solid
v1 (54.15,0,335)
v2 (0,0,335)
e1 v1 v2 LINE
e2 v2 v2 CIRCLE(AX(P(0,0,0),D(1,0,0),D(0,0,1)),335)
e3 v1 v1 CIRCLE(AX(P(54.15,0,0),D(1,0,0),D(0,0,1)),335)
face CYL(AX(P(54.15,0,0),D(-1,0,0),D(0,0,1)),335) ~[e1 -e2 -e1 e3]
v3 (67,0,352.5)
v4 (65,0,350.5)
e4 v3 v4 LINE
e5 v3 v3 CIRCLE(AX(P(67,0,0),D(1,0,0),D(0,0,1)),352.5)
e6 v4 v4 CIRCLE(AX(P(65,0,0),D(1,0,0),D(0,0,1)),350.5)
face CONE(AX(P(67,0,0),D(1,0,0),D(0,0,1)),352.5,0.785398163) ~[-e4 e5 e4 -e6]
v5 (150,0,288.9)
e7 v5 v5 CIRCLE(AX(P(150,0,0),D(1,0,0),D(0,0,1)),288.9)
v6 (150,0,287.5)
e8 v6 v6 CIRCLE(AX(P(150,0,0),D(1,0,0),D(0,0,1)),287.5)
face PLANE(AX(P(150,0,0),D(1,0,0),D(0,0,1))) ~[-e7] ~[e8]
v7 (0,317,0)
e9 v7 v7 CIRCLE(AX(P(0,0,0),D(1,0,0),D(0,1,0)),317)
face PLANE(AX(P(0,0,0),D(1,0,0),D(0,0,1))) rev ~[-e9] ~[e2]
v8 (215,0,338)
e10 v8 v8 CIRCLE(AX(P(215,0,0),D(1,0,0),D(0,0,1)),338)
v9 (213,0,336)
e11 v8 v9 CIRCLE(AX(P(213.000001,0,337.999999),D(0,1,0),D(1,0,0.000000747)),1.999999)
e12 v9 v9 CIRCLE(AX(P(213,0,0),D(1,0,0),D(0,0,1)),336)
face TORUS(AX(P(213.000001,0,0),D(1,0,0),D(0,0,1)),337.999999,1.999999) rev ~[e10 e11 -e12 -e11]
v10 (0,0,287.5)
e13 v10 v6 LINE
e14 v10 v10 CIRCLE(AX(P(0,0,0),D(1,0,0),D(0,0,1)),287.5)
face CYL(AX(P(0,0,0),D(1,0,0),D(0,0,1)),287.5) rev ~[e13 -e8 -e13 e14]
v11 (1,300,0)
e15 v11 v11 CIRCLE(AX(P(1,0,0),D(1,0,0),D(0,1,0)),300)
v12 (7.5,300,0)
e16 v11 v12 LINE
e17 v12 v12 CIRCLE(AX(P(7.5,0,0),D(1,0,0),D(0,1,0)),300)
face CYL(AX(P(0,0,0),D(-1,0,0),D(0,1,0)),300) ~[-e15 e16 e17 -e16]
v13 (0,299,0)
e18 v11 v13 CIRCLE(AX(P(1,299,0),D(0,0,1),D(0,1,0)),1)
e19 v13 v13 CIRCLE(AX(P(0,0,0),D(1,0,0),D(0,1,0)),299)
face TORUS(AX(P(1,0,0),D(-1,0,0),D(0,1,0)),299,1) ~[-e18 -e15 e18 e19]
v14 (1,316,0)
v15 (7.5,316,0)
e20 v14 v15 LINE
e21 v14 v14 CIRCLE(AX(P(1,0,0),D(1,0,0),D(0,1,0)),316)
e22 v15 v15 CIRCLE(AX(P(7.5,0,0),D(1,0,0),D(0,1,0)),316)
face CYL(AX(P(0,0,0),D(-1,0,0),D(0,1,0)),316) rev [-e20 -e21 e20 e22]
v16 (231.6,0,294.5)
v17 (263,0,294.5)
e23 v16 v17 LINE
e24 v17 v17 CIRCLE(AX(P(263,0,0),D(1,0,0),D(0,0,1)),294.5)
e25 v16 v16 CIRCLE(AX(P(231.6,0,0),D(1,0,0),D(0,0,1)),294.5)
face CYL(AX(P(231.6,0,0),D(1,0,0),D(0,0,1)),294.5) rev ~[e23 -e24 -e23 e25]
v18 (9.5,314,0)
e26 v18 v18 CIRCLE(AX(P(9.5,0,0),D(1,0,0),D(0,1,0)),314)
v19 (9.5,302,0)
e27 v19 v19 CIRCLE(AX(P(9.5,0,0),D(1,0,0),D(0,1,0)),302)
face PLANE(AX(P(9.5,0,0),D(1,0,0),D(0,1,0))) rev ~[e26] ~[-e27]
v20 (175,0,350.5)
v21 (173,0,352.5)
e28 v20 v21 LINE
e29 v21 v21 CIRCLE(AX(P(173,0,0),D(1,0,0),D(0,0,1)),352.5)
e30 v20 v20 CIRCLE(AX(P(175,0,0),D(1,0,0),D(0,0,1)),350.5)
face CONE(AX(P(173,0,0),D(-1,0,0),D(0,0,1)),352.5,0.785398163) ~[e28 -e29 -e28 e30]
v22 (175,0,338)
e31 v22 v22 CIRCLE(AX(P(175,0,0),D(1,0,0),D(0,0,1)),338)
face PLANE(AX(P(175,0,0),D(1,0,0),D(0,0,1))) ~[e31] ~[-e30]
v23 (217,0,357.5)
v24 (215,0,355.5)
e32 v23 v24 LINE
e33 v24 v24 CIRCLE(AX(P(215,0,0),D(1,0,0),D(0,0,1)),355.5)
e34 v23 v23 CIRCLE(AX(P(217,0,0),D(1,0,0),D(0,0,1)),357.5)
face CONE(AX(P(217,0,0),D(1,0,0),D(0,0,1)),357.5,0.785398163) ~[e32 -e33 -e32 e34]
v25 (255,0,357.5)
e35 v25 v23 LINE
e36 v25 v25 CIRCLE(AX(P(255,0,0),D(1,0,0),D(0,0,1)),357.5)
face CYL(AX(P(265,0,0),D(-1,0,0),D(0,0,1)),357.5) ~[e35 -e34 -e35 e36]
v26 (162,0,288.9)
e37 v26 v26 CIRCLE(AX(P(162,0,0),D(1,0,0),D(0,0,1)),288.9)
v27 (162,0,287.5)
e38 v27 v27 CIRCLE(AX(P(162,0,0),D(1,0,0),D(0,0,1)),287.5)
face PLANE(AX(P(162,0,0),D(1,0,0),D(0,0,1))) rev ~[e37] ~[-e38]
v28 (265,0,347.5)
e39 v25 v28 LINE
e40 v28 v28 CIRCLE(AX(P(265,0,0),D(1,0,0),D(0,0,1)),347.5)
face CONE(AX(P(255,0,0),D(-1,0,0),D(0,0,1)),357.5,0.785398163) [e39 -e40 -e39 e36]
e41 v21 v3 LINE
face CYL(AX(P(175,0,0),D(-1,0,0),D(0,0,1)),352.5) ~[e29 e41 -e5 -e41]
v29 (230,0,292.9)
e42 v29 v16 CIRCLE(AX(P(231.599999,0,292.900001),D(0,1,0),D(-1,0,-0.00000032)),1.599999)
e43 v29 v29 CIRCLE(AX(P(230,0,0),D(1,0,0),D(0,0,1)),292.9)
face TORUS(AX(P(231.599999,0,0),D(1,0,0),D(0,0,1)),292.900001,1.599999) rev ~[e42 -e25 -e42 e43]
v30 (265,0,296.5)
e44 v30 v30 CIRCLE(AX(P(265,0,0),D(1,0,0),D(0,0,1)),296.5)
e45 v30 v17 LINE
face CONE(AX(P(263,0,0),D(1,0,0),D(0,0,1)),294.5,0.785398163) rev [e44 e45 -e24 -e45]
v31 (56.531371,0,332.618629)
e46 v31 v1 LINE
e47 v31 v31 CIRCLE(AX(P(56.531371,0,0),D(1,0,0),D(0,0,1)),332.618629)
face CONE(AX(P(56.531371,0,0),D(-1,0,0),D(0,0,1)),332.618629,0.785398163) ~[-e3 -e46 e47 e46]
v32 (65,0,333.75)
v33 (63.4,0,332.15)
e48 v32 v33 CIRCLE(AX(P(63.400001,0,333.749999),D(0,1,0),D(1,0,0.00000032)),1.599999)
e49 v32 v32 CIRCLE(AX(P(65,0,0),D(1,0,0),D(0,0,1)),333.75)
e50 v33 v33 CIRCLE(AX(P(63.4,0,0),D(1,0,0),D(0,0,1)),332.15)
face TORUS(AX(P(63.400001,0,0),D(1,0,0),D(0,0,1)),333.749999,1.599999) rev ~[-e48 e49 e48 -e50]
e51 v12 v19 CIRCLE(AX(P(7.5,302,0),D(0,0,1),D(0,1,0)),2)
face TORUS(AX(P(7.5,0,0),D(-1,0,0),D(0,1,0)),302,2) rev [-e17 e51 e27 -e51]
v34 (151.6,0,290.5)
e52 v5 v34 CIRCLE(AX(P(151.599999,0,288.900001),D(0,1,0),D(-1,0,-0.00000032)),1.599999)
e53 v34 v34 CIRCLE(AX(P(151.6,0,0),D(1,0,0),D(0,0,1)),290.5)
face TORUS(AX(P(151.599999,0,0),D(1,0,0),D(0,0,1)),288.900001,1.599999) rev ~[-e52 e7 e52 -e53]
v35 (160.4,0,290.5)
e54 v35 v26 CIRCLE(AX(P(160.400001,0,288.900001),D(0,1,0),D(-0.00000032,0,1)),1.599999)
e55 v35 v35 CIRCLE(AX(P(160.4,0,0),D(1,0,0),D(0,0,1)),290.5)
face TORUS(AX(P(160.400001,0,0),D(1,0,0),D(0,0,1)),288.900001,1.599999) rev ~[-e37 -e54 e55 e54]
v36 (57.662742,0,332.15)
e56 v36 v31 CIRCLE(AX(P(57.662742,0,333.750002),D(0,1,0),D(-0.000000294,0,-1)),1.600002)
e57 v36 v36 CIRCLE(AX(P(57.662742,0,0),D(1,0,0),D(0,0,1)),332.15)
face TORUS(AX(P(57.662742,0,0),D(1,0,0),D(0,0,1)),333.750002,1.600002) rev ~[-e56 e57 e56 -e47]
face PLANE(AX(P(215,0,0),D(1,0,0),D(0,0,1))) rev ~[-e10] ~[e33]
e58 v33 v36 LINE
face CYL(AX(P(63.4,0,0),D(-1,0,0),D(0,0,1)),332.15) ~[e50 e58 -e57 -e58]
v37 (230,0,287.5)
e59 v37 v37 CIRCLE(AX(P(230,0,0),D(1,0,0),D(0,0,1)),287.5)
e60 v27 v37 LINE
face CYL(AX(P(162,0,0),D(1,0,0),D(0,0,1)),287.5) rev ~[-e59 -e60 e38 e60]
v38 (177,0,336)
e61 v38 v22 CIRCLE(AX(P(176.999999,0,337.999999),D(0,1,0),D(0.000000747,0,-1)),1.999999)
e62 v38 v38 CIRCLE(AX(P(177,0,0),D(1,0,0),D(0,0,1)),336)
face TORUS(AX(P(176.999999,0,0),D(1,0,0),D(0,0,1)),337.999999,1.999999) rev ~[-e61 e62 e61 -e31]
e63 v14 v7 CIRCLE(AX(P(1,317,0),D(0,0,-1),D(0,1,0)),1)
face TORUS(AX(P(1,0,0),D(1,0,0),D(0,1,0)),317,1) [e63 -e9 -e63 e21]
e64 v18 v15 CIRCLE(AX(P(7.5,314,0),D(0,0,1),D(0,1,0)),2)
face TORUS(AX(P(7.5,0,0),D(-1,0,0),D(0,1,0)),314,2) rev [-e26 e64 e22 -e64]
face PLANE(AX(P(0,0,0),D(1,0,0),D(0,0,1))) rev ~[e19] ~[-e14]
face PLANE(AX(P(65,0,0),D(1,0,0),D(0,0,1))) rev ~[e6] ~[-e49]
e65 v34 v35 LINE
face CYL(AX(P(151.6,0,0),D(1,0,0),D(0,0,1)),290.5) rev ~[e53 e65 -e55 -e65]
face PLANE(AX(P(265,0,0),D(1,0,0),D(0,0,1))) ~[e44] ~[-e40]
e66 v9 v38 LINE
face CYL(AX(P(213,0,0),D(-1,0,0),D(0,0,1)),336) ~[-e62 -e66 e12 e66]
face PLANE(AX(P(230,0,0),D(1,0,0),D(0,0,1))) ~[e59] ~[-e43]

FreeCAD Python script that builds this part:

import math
import FreeCAD as App
import Part
import Sketcher

V = App.Vector
Q = App.Units.Quantity


def edges_at(feature, points):
    """Names of the edges that pass closest to the given points."""
    edges = feature.Shape.Edges
    near = lambda p: min(range(len(edges)), key=lambda i: edges[i].distToShape(Part.Vertex(*p))[0])
    return sorted({f"Edge{near(p) + 1}" for p in points})

doc = App.newDocument("Part")
params = doc.addObject("Spreadsheet::Sheet", "Params")
for row, (alias, value) in enumerate([
    ("sketch1_radius", "1.999999 mm"),
    ("sketch1_radius2", "1.599999 mm"),
    ("sketch1_width", "150 mm"),
    ("sketch1_width2", "68 mm"),
    ("sketch1_width3", "50 mm"),
    ("revolution_angle", "360 deg"),
    ("chamfer_size", "2 mm"),
    ("chamfer2_size", "10 mm"),
    ("chamfer3_size", "2 mm"),
    ("sketch2_diameter", "632 mm"),
    ("sketch2_diameter2", "600 mm"),
    ("pocket1_length", "9.5 mm"),
    ("fillet_radius", "2 mm"),
    ("fillet2_radius", "1 mm"),
], start=1):
    params.set(f"A{row}", alias)
    params.set(f"B{row}", "=" + value)
    params.setAlias(f"B{row}", alias)

body = doc.addObject("PartDesign::Body", "Body")

sketch1 = body.newObject("Sketcher::SketchObject", "Sketch")
sketch1.AttachmentSupport = (doc.getObject("XZ_Plane"), [""])
sketch1.MapMode = "FlatFace"
sketch1.addGeometry(Part.LineSegment(V(0, 335, 0), V(0, 287.5, 0)), False)
sketch1.addGeometry(Part.LineSegment(V(0, 287.5, 0), V(150, 287.5, 0)), False)
sketch1.addGeometry(Part.LineSegment(V(150, 287.5, 0), V(150, 288.9, 0)), False)
sketch1.addGeometry(Part.ArcOfCircle(Part.Circle(V(151.6, 288.9, 0), V(0, 0, 1), 1.6), math.radians(90), math.radians(180)), False)
sketch1.addGeometry(Part.LineSegment(V(151.6, 290.5, 0), V(160.4, 290.5, 0)), False)
sketch1.addGeometry(Part.ArcOfCircle(Part.Circle(V(160.4, 288.9, 0), V(0, 0, 1), 1.6), math.radians(0), math.radians(90)), False)
sketch1.addGeometry(Part.LineSegment(V(162, 288.9, 0), V(162, 287.5, 0)), False)
sketch1.addGeometry(Part.LineSegment(V(162, 287.5, 0), V(230, 287.5, 0)), False)
sketch1.addGeometry(Part.LineSegment(V(230, 287.5, 0), V(230, 292.9, 0)), False)
sketch1.addGeometry(Part.ArcOfCircle(Part.Circle(V(231.6, 292.9, 0), V(0, 0, 1), 1.6), math.radians(90), math.radians(180)), False)
sketch1.addGeometry(Part.LineSegment(V(231.6, 294.5, 0), V(265, 294.5, 0)), False)
sketch1.addGeometry(Part.LineSegment(V(265, 294.5, 0), V(265, 357.5, 0)), False)
sketch1.addGeometry(Part.LineSegment(V(265, 357.5, 0), V(215, 357.5, 0)), False)
sketch1.addGeometry(Part.LineSegment(V(215, 357.5, 0), V(215, 338, 0)), False)
sketch1.addGeometry(Part.ArcOfCircle(Part.Circle(V(213, 338, 0), V(0, 0, 1), 2), math.radians(-90), math.radians(0)), False)
sketch1.addGeometry(Part.LineSegment(V(213, 336, 0), V(177, 336, 0)), False)
sketch1.addGeometry(Part.ArcOfCircle(Part.Circle(V(177, 338, 0), V(0, 0, 1), 2), math.radians(180), math.radians(270)), False)
sketch1.addGeometry(Part.LineSegment(V(175, 338, 0), V(175, 352.5, 0)), False)
sketch1.addGeometry(Part.LineSegment(V(175, 352.5, 0), V(65, 352.5, 0)), False)
sketch1.addGeometry(Part.LineSegment(V(65, 352.5, 0), V(65, 333.8, 0)), False)
sketch1.addGeometry(Part.ArcOfCircle(Part.Circle(V(63.4, 333.7, 0), V(0, 0, 1), 1.6), math.radians(-90), math.radians(0)), False)
sketch1.addGeometry(Part.LineSegment(V(63.4, 332.1, 0), V(57.7, 332.1, 0)), False)
sketch1.addGeometry(Part.ArcOfCircle(Part.Circle(V(57.7, 333.8, 0), V(0, 0, 1), 1.6), math.radians(-135), math.radians(-90)), False)
sketch1.addGeometry(Part.LineSegment(V(56.5, 332.6, 0), V(54.1, 335, 0)), False)
sketch1.addGeometry(Part.LineSegment(V(54.1, 335, 0), V(0, 335, 0)), False)
sketch1.addConstraint(Sketcher.Constraint("Coincident", 0, 2, 1, 1))
sketch1.addConstraint(Sketcher.Constraint("Coincident", 1, 2, 2, 1))
sketch1.addConstraint(Sketcher.Constraint("Tangent", 2, 2, 3, 2))
sketch1.addConstraint(Sketcher.Constraint("Tangent", 3, 1, 4, 1))
sketch1.addConstraint(Sketcher.Constraint("Tangent", 4, 2, 5, 2))
sketch1.addConstraint(Sketcher.Constraint("Tangent", 5, 1, 6, 1))
sketch1.addConstraint(Sketcher.Constraint("Coincident", 6, 2, 7, 1))
sketch1.addConstraint(Sketcher.Constraint("Coincident", 7, 2, 8, 1))
sketch1.addConstraint(Sketcher.Constraint("Tangent", 8, 2, 9, 2))
sketch1.addConstraint(Sketcher.Constraint("Tangent", 9, 1, 10, 1))
sketch1.addConstraint(Sketcher.Constraint("Coincident", 10, 2, 11, 1))
sketch1.addConstraint(Sketcher.Constraint("Coincident", 11, 2, 12, 1))
sketch1.addConstraint(Sketcher.Constraint("Coincident", 12, 2, 13, 1))
sketch1.addConstraint(Sketcher.Constraint("Tangent", 13, 2, 14, 2))
sketch1.addConstraint(Sketcher.Constraint("Tangent", 14, 1, 15, 1))
sketch1.addConstraint(Sketcher.Constraint("Tangent", 15, 2, 16, 2))
sketch1.addConstraint(Sketcher.Constraint("Tangent", 16, 1, 17, 1))
sketch1.addConstraint(Sketcher.Constraint("Coincident", 17, 2, 18, 1))
sketch1.addConstraint(Sketcher.Constraint("Coincident", 18, 2, 19, 1))
sketch1.addConstraint(Sketcher.Constraint("Tangent", 19, 2, 20, 2))
sketch1.addConstraint(Sketcher.Constraint("Tangent", 20, 1, 21, 1))
sketch1.addConstraint(Sketcher.Constraint("Tangent", 21, 2, 22, 2))
sketch1.addConstraint(Sketcher.Constraint("Tangent", 22, 1, 23, 1))
sketch1.addConstraint(Sketcher.Constraint("Coincident", 23, 2, 24, 1))
sketch1.addConstraint(Sketcher.Constraint("Coincident", 24, 2, 0, 1))
sketch1.addConstraint(Sketcher.Constraint("Vertical", 0))
sketch1.addConstraint(Sketcher.Constraint("Horizontal", 1))
sketch1.addConstraint(Sketcher.Constraint("Vertical", 2))
sketch1.addConstraint(Sketcher.Constraint("Horizontal", 4))
sketch1.addConstraint(Sketcher.Constraint("Vertical", 6))
sketch1.addConstraint(Sketcher.Constraint("Horizontal", 7))
sketch1.addConstraint(Sketcher.Constraint("Vertical", 8))
sketch1.addConstraint(Sketcher.Constraint("Horizontal", 10))
sketch1.addConstraint(Sketcher.Constraint("Vertical", 11))
sketch1.addConstraint(Sketcher.Constraint("Horizontal", 12))
sketch1.addConstraint(Sketcher.Constraint("Vertical", 13))
sketch1.addConstraint(Sketcher.Constraint("Horizontal", 15))
sketch1.addConstraint(Sketcher.Constraint("Vertical", 17))
sketch1.addConstraint(Sketcher.Constraint("Horizontal", 18))
sketch1.addConstraint(Sketcher.Constraint("Vertical", 19))
sketch1.addConstraint(Sketcher.Constraint("Horizontal", 21))
sketch1.addConstraint(Sketcher.Constraint("Horizontal", 24))
sketch1.addConstraint(Sketcher.Constraint("Equal", 3, 5))
sketch1.addConstraint(Sketcher.Constraint("Equal", 5, 9))
sketch1.addConstraint(Sketcher.Constraint("Equal", 14, 16))
sketch1.addConstraint(Sketcher.Constraint("Equal", 9, 20))
sketch1.addConstraint(Sketcher.Constraint("PointOnObject", 0, 2, -2))
sketch1.addConstraint(Sketcher.Constraint("Horizontal", 1, 2, 6, 2))
sketch1.addConstraint(Sketcher.Constraint("Horizontal", 22, 3, 19, 2))
sketch1.addConstraint(Sketcher.Constraint("Radius", 14, Q("1.999999 mm")))
sketch1.addConstraint(Sketcher.Constraint("Radius", 3, Q("1.599999 mm")))
sketch1.addConstraint(Sketcher.Constraint("DistanceX", 1, 1, 1, 2, Q("150 mm")))
sketch1.addConstraint(Sketcher.Constraint("DistanceX", 7, 1, 7, 2, Q("68 mm")))
sketch1.addConstraint(Sketcher.Constraint("DistanceX", 12, 2, 12, 1, Q("50 mm")))
sketch1.addConstraint(Sketcher.Constraint("DistanceX", 15, 2, 15, 1, Q("36 mm")))
sketch1.addConstraint(Sketcher.Constraint("DistanceX", 18, 2, 18, 1, Q("110 mm")))
sketch1.addConstraint(Sketcher.Constraint("DistanceY", 11, 1, 11, 2, Q("63 mm")))
sketch1.addConstraint(Sketcher.Constraint("Angle", 23, Q("135 deg")))
sketch1.addConstraint(Sketcher.Constraint("DistanceX", 4, 1, 4, 2, Q("8.8 mm")))
sketch1.addConstraint(Sketcher.Constraint("DistanceX", 10, 1, 10, 2, Q("33.4 mm")))
sketch1.addConstraint(Sketcher.Constraint("DistanceY", 0, 2, 0, 1, Q("47.5 mm")))
sketch1.addConstraint(Sketcher.Constraint("DistanceY", 2, 1, 2, 2, Q("1.4 mm")))
sketch1.addConstraint(Sketcher.Constraint("DistanceY", 8, 1, 8, 2, Q("5.4 mm")))
sketch1.addConstraint(Sketcher.Constraint("DistanceY", 13, 2, 13, 1, Q("19.5 mm")))
sketch1.addConstraint(Sketcher.Constraint("DistanceY", 17, 1, 17, 2, Q("14.5 mm")))
sketch1.addConstraint(Sketcher.Constraint("DistanceY", -1, 1, 14, 3, Q("337.999999 mm")))
sketch1.addConstraint(Sketcher.Constraint("DistanceX", 24, 2, 24, 1, Q("54.15 mm")))
sketch1.addConstraint(Sketcher.Constraint("DistanceY", 19, 2, 19, 1, Q("18.75 mm")))
sketch1.setExpression("Constraints[49]", "Params.sketch1_radius")
sketch1.setExpression("Constraints[50]", "Params.sketch1_radius2")
sketch1.setExpression("Constraints[51]", "Params.sketch1_width")
sketch1.setExpression("Constraints[52]", "Params.sketch1_width2")
sketch1.setExpression("Constraints[53]", "Params.sketch1_width3")
revolution = body.newObject("PartDesign::Revolution", "Revolution")
revolution.Profile = sketch1
revolution.ReferenceAxis = (sketch1, ["H_Axis"])
revolution.setExpression("Angle", "Params.revolution_angle")
doc.recompute()

chamfer = body.newObject("PartDesign::Chamfer", "Chamfer")
chamfer.Base = (revolution, edges_at(revolution, [(175, 0, -352.5), (215, 0, -357.5), (65, 0, -352.5)]))
chamfer.setExpression("Size", "Params.chamfer_size")
doc.recompute()

chamfer2 = body.newObject("PartDesign::Chamfer", "Chamfer001")
chamfer2.Base = (chamfer, edges_at(chamfer, [(265, 0, -357.5)]))
chamfer2.setExpression("Size", "Params.chamfer2_size")
doc.recompute()

chamfer3 = body.newObject("PartDesign::Chamfer", "Chamfer002")
chamfer3.Base = (chamfer2, edges_at(chamfer2, [(265, 0, -294.5)]))
chamfer3.setExpression("Size", "Params.chamfer3_size")

sketch2 = body.newObject("Sketcher::SketchObject", "Sketch001")
sketch2.AttachmentSupport = (doc.getObject("YZ_Plane"), [""])
sketch2.MapMode = "FlatFace"
sketch2.addGeometry(Part.Circle(V(0, 0, 0), V(0, 0, 1), 316), False)
sketch2.addGeometry(Part.Circle(V(0, 0, 0), V(0, 0, 1), 300), False)
sketch2.addConstraint(Sketcher.Constraint("Coincident", 0, 3, -1, 1))
sketch2.addConstraint(Sketcher.Constraint("Coincident", 1, 3, -1, 1))
sketch2.addConstraint(Sketcher.Constraint("Diameter", 0, Q("632 mm")))
sketch2.addConstraint(Sketcher.Constraint("Diameter", 1, Q("600 mm")))
sketch2.setExpression("Constraints[2]", "Params.sketch2_diameter")
sketch2.setExpression("Constraints[3]", "Params.sketch2_diameter2")
pocket1 = body.newObject("PartDesign::Pocket", "Pocket")
pocket1.Profile = sketch2
pocket1.setExpression("Length", "Params.pocket1_length")
pocket1.Reversed = True
doc.recompute()

fillet = body.newObject("PartDesign::Fillet", "Fillet")
fillet.Base = (pocket1, edges_at(pocket1, [(9.5, -300, 0), (9.5, -316, 0)]))
fillet.setExpression("Radius", "Params.fillet_radius")
doc.recompute()

fillet2 = body.newObject("PartDesign::Fillet", "Fillet001")
fillet2.Base = (fillet, edges_at(fillet, [(0, -316, 0), (0, -300, 0)]))
fillet2.setExpression("Radius", "Params.fillet2_radius")

doc.recompute()
